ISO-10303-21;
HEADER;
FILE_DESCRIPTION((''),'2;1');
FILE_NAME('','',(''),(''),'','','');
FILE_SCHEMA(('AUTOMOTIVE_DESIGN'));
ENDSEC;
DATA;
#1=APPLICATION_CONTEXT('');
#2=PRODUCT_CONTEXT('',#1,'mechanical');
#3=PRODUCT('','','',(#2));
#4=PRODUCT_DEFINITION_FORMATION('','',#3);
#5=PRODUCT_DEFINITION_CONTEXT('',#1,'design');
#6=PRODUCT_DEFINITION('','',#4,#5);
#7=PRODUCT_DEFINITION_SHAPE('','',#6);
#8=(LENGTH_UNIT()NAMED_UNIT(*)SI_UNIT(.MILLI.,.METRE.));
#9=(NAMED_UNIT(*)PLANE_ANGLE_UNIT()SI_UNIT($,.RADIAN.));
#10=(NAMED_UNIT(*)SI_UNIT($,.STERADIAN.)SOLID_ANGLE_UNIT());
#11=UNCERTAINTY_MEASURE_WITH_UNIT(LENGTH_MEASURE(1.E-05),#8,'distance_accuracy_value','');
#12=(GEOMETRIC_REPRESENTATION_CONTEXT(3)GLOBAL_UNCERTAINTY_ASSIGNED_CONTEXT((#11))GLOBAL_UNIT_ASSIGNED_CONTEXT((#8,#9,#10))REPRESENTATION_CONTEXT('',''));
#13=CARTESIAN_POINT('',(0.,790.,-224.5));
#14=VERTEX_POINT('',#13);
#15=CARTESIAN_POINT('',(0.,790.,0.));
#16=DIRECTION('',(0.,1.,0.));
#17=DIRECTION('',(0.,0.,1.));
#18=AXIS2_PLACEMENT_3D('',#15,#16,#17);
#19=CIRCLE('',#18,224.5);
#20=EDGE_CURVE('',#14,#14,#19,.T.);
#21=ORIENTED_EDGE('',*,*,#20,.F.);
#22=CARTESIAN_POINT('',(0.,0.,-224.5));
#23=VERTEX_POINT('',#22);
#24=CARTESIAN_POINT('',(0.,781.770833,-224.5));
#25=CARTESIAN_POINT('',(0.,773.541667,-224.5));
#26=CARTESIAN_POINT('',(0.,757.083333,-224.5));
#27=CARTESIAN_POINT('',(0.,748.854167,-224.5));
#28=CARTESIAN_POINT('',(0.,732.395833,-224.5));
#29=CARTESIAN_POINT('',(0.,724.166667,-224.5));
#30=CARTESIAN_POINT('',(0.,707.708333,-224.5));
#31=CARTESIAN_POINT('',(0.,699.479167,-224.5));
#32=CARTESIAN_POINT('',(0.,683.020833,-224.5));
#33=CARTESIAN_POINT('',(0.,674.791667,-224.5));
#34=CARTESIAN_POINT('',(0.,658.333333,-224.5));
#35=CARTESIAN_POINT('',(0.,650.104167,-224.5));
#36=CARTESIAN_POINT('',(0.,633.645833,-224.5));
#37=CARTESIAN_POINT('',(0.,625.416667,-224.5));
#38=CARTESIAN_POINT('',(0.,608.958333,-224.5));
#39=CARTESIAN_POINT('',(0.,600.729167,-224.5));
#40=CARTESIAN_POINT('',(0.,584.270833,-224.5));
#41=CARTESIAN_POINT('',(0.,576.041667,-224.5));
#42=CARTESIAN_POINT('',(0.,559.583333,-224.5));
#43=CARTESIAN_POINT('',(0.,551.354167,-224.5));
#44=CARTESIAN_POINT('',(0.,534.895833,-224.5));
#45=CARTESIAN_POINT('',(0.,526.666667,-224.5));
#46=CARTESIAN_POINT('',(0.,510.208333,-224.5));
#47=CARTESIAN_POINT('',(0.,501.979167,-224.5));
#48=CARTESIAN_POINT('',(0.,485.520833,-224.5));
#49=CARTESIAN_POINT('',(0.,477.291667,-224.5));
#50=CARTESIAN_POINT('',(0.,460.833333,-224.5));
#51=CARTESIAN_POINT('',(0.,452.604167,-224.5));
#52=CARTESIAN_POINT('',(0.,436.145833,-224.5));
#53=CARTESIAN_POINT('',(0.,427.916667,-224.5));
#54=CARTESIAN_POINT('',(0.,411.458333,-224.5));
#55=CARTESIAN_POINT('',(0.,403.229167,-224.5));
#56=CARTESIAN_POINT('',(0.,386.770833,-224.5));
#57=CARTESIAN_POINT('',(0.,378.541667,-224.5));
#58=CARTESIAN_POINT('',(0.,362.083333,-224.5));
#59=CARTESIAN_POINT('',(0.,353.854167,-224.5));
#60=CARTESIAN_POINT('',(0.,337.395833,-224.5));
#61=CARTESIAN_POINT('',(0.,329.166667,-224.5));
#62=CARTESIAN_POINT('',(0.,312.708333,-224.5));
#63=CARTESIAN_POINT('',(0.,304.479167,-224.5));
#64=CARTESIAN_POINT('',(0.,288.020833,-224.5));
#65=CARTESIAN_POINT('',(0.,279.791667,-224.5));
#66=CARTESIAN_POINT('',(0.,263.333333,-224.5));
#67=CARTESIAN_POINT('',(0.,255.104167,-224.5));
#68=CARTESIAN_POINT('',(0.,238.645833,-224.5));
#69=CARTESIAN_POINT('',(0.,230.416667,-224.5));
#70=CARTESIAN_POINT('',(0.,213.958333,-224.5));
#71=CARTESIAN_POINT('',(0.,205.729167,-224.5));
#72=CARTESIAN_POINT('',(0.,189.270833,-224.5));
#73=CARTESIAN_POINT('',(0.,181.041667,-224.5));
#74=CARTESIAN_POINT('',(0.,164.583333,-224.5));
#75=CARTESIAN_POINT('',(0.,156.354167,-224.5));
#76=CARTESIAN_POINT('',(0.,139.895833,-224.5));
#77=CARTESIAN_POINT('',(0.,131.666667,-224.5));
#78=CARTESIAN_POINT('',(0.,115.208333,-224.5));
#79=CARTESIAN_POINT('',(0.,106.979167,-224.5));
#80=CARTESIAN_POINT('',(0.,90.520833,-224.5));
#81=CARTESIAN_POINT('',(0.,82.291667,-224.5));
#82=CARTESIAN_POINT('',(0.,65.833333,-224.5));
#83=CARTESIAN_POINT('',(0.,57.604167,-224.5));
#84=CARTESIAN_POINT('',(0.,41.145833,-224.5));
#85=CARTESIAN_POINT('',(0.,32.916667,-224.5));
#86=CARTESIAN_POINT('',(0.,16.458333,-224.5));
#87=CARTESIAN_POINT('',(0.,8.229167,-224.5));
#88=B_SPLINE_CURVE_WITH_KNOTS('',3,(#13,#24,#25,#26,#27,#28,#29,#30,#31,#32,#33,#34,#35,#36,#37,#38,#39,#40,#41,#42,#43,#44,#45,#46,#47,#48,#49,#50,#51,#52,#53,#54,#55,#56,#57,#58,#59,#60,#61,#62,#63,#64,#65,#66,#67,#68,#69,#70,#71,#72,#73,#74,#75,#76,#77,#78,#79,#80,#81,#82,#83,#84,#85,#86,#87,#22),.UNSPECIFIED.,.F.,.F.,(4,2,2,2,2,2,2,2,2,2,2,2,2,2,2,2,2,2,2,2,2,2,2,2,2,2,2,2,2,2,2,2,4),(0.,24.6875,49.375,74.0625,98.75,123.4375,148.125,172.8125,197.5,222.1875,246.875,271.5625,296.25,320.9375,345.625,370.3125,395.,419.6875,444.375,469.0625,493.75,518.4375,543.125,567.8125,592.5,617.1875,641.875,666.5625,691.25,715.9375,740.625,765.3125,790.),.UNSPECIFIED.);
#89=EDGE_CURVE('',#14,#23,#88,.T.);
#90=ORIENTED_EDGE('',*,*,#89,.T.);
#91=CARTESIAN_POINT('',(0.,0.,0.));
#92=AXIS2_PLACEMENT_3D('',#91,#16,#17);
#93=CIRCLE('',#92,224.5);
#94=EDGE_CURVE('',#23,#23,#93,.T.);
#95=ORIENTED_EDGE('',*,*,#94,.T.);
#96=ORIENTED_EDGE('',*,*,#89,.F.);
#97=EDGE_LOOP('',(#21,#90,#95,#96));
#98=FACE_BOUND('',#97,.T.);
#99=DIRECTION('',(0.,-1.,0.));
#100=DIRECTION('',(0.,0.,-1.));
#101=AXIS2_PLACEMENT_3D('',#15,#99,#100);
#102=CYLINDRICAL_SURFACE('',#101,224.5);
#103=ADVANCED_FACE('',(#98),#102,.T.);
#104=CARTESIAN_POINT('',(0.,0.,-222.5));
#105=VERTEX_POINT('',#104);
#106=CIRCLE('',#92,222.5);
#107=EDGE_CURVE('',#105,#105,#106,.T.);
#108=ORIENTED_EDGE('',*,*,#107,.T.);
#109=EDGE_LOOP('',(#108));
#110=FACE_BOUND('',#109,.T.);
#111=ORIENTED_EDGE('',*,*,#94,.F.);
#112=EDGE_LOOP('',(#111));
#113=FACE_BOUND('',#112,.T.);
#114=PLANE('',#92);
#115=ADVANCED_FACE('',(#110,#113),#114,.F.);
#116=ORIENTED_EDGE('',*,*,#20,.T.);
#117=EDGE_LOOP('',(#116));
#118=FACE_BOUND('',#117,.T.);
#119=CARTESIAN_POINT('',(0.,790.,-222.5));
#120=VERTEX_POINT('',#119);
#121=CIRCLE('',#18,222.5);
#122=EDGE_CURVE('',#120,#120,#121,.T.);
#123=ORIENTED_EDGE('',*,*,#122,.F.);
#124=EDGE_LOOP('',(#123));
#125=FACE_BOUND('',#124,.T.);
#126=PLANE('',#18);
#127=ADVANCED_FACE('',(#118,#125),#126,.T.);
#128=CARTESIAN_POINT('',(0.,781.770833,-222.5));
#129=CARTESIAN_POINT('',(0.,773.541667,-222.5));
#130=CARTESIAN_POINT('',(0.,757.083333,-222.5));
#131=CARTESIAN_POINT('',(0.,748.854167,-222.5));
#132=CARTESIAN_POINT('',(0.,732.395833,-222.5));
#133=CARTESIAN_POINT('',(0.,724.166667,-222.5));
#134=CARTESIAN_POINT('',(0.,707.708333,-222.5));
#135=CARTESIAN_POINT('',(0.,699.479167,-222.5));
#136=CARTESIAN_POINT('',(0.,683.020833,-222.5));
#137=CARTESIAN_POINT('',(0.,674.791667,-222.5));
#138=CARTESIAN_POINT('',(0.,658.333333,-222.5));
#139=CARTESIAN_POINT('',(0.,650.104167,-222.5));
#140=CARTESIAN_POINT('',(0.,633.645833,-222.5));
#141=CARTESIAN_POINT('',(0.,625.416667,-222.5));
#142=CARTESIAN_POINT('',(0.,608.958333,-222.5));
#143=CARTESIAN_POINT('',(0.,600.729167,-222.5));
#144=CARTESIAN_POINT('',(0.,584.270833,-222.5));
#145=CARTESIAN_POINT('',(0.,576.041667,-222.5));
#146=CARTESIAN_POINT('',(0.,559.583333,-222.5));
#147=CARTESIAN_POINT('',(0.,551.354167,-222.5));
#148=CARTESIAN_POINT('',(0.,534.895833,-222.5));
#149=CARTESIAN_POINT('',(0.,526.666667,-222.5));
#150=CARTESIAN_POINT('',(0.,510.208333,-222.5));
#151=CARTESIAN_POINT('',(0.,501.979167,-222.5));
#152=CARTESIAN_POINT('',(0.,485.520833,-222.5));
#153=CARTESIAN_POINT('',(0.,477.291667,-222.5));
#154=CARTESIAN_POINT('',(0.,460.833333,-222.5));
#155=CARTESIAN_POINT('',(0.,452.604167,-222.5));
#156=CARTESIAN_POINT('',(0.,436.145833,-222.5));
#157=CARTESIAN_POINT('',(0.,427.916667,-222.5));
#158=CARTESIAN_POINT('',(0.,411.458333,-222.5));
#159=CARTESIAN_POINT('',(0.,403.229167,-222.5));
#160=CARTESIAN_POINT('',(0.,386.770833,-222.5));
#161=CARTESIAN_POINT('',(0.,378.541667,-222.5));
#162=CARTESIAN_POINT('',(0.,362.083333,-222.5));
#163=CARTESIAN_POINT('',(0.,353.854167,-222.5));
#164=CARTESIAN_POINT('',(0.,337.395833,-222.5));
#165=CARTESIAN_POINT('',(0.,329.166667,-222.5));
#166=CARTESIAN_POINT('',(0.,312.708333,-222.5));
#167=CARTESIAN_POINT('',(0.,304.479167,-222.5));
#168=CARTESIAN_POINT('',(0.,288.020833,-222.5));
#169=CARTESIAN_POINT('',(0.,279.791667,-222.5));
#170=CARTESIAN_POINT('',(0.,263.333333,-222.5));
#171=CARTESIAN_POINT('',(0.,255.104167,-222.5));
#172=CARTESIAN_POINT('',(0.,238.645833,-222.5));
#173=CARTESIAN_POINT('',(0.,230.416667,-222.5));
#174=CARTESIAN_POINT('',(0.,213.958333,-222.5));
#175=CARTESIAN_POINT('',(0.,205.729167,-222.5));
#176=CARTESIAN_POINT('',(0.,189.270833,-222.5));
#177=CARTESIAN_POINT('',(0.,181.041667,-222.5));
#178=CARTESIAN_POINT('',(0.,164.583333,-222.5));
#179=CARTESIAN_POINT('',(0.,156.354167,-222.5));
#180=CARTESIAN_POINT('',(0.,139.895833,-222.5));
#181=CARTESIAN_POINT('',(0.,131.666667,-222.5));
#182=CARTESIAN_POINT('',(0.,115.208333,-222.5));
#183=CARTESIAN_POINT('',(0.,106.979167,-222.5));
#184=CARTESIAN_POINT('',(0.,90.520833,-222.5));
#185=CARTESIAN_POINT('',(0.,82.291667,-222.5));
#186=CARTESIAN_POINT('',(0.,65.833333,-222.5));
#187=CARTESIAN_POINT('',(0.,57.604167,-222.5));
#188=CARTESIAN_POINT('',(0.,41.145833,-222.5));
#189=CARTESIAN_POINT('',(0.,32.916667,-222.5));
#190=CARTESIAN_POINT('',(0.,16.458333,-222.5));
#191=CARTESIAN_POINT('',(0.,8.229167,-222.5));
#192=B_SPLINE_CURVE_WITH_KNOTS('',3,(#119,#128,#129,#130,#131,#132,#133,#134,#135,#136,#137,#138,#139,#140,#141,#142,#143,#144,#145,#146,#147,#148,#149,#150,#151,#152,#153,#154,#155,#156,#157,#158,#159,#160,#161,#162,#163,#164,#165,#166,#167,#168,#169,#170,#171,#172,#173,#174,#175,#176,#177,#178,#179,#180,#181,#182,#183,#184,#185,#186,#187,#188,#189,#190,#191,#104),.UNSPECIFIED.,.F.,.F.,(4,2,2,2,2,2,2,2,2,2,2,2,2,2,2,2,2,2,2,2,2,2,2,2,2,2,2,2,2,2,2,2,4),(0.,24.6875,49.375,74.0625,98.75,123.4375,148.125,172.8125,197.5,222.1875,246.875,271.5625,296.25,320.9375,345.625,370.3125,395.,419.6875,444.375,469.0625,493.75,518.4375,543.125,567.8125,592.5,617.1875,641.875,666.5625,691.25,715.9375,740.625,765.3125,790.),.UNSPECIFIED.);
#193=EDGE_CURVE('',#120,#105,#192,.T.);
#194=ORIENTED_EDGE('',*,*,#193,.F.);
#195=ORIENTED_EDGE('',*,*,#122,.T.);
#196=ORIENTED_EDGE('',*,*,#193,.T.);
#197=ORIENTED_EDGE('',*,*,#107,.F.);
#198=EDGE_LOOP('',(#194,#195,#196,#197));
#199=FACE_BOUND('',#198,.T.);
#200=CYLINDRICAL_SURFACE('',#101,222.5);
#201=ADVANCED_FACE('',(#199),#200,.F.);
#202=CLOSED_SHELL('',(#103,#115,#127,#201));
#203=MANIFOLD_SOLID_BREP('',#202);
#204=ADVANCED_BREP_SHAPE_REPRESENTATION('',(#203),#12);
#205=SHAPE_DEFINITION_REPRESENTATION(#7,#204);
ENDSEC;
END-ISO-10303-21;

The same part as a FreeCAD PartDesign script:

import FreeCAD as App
import Part
import Sketcher
from FreeCAD import Vector
Q = App.Units.Quantity


def faces_at(feature, points):
    """Names of the faces that lie closest to the given points."""
    faces = feature.Shape.Faces
    near = lambda p: min(range(len(faces)), key=lambda i: faces[i].distToShape(Part.Vertex(*p))[0])
    return sorted({f"Face{near(p) + 1}" for p in points})

doc = App.newDocument("Part")
body = doc.addObject("PartDesign::Body", "Body")

# Sketch on XZ plane
sketch1 = doc.addObject("Sketcher::SketchObject", "Sketch")
body.addObject(sketch1)
sketch1.AttachmentSupport = (doc.XZ_Plane, [""])
sketch1.MapMode = "FlatFace"
sketch1.addGeometry(Part.Circle(Vector(0, 0, 0), Vector(0, 0, 1), 222.5), False)
sketch1.addConstraint([
    Sketcher.Constraint("Coincident", 0, 3, -1, 1),
    Sketcher.Constraint("Diameter", 0, Q("445 mm")),
])
pad1 = doc.addObject("PartDesign::Pad", "Pad")
body.addObject(pad1)
pad1.Profile = sketch1
pad1.Length = 790
pad1.Reversed = True
doc.recompute()

thickness = doc.addObject("PartDesign::Thickness", "Thickness")
body.addObject(thickness)
thickness.Base = (pad1, faces_at(pad1, [(0, 0, 0), (0, 790, 0)]))
thickness.Value = 2
thickness.Reversed = False
thickness.Join = "Intersection"

doc.recompute()
